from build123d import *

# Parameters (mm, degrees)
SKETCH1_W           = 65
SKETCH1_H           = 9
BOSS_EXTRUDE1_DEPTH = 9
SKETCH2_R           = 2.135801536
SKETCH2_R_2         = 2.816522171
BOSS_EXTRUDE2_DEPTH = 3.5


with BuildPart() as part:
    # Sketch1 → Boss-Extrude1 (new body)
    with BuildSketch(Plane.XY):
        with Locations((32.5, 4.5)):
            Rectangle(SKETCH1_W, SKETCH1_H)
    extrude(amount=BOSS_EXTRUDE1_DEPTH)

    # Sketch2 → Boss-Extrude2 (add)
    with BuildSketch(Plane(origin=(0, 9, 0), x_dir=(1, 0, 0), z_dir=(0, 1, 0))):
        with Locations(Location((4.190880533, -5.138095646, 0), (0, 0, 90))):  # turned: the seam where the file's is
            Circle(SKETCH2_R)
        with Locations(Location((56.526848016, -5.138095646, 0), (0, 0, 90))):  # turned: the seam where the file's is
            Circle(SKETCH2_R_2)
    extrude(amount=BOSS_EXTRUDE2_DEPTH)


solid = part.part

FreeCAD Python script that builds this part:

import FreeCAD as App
import Part
import Sketcher
from FreeCAD import Vector

doc = App.newDocument("Part")
body = doc.addObject("PartDesign::Body", "Body")

sketch1 = body.newObject("Sketcher::SketchObject", "Sketch")
sketch1.AttachmentSupport = (doc.getObject("XY_Plane"), [""])
sketch1.MapMode = "FlatFace"
sketch1.addGeometry(Part.LineSegment(Vector(0, 9, 0), Vector(0, 0, 0)), False)
sketch1.addGeometry(Part.LineSegment(Vector(0, 0, 0), Vector(65, 0, 0)), False)
sketch1.addGeometry(Part.LineSegment(Vector(65, 0, 0), Vector(65, 9, 0)), False)
sketch1.addGeometry(Part.LineSegment(Vector(65, 9, 0), Vector(0, 9, 0)), False)
sketch1.addConstraint(Sketcher.Constraint("Coincident", 0, 2, 1, 1))
sketch1.addConstraint(Sketcher.Constraint("Coincident", 1, 2, 2, 1))
sketch1.addConstraint(Sketcher.Constraint("Coincident", 2, 2, 3, 1))
sketch1.addConstraint(Sketcher.Constraint("Coincident", 3, 2, 0, 1))
sketch1.addConstraint(Sketcher.Constraint("Vertical", 0))
sketch1.addConstraint(Sketcher.Constraint("Horizontal", 1))
sketch1.addConstraint(Sketcher.Constraint("Vertical", 2))
sketch1.addConstraint(Sketcher.Constraint("Horizontal", 3))
sketch1.addConstraint(Sketcher.Constraint("Coincident", 0, 2, -1, 1))
sketch1.addConstraint(Sketcher.Constraint("DistanceX", 1, 1, 1, 2, 65.0))
sketch1.addConstraint(Sketcher.Constraint("DistanceY", 0, 2, 0, 1, 9.0))
pad1 = body.newObject("PartDesign::Pad", "Pad")
pad1.Profile = sketch1
pad1.Length = 9

sketch2 = body.newObject("Sketcher::SketchObject", "Sketch001")
sketch2.AttachmentSupport = (doc.getObject("XZ_Plane"), [""])
sketch2.MapMode = "FlatFace"
sketch2.AttachmentOffset = App.Placement(Vector(0, 0, -9), App.Rotation())
sketch2.addGeometry(Part.Circle(Vector(4.2, 5.1, 0), Vector(0, 0, 1), 2.1), False)
sketch2.addGeometry(Part.Circle(Vector(56.5, 5.1, 0), Vector(0, 0, 1), 2.8), False)
sketch2.addConstraint(Sketcher.Constraint("Horizontal", 0, 3, 1, 3))
sketch2.addConstraint(Sketcher.Constraint("Diameter", 0, 4.271603))
sketch2.addConstraint(Sketcher.Constraint("Diameter", 1, 5.633044))
sketch2.addConstraint(Sketcher.Constraint("DistanceX", -1, 1, 0, 3, 4.190881))
sketch2.addConstraint(Sketcher.Constraint("DistanceX", -1, 1, 1, 3, 56.526848))
sketch2.addConstraint(Sketcher.Constraint("DistanceY", -1, 1, 0, 3, 5.138096))
pad2 = body.newObject("PartDesign::Pad", "Pad001")
pad2.Profile = sketch2
pad2.Length = 3.5
pad2.Reversed = True

doc.recompute()
